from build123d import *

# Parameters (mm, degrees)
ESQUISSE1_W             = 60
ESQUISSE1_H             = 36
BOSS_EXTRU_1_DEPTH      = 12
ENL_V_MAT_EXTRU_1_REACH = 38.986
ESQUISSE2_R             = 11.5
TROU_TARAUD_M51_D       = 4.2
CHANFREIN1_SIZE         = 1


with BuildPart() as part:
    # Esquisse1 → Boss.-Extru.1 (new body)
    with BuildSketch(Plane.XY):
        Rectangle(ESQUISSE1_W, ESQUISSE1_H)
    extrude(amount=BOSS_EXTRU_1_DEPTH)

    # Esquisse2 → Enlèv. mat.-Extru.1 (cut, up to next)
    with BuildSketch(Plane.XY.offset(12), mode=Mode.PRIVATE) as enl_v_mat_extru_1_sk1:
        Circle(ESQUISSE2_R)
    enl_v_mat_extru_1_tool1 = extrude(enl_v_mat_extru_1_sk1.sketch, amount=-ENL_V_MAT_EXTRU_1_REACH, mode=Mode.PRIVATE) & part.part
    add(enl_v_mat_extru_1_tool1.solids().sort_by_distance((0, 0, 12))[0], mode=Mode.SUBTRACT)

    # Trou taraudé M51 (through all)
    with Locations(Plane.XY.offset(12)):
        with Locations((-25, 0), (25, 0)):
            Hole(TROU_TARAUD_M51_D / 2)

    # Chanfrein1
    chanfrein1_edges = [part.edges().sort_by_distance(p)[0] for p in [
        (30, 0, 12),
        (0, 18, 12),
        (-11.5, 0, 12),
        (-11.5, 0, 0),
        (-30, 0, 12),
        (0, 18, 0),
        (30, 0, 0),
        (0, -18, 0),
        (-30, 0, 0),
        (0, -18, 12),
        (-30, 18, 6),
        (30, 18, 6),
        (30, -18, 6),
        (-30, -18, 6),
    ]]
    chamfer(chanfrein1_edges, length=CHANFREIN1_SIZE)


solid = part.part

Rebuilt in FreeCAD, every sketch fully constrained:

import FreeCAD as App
import Part
import Sketcher
from FreeCAD import Vector
Q = App.Units.Quantity


def edges_at(feature, points):
    """Names of the edges that pass closest to the given points."""
    edges = feature.Shape.Edges
    near = lambda p: min(range(len(edges)), key=lambda i: edges[i].distToShape(Part.Vertex(*p))[0])
    return sorted({f"Edge{near(p) + 1}" for p in points})


def add_polygon(sketch, points):
    """Adds a closed chain of lines whose ends are joined by coincident constraints."""
    first, n = sketch.GeometryCount, len(points)
    for a, b in zip(points, points[1:] + points[:1]):
        sketch.addGeometry(Part.LineSegment(App.Vector(*a, 0), App.Vector(*b, 0)), False)
    for i in range(n):
        sketch.addConstraint(Sketcher.Constraint("Coincident", first + i, 2, first + (i + 1) % n, 1))

doc = App.newDocument("Part")
body = doc.addObject("PartDesign::Body", "Body")

# Sketch on XY plane
sketch1 = body.newObject("Sketcher::SketchObject", "Sketch")
sketch1.AttachmentSupport = (doc.getObject("XY_Plane"), [""])
sketch1.MapMode = "FlatFace"
add_polygon(sketch1, [(-30, 18), (-30, -18), (30, -18), (30, 18)])  # lines 0-3
sketch1.addConstraint([
    Sketcher.Constraint("Vertical", 0),
    Sketcher.Constraint("Horizontal", 1),
    Sketcher.Constraint("Vertical", 2),
    Sketcher.Constraint("Horizontal", 3),
    Sketcher.Constraint("Symmetric", 0, 2, 2, 2, -1, 1),
    Sketcher.Constraint("DistanceX", 1, 1, 1, 2, Q("60 mm")),
    Sketcher.Constraint("DistanceY", 0, 2, 0, 1, Q("36 mm")),
])
pad1 = body.newObject("PartDesign::Pad", "Pad")
pad1.Profile = sketch1
pad1.Length = 12

# Sketch on XY plane
sketch2 = body.newObject("Sketcher::SketchObject", "Sketch001")
sketch2.AttachmentSupport = (doc.getObject("XY_Plane"), [""])
sketch2.MapMode = "FlatFace"
sketch2.AttachmentOffset = App.Placement(Vector(0, 0, 12), App.Rotation())
sketch2.addGeometry(Part.Circle(Vector(0, 0, 0), Vector(0, 0, 1), 12), False)
sketch2.addConstraint([
    Sketcher.Constraint("Coincident", 0, 3, -1, 1),
    Sketcher.Constraint("Diameter", 0, Q("23 mm")),
])
pocket1 = body.newObject("PartDesign::Pocket", "Pocket")
pocket1.Profile = sketch2
pocket1.Type = "UpToFirst"

# Sketch on XY plane
sketch3 = body.newObject("Sketcher::SketchObject", "Sketch002")
sketch3.AttachmentSupport = (doc.getObject("XY_Plane"), [""])
sketch3.MapMode = "FlatFace"
sketch3.AttachmentOffset = App.Placement(Vector(0, 0, 12), App.Rotation())
sketch3.addGeometry([
    Part.Circle(Vector(-25, 0, 0), Vector(0, 0, 1), 2.1),
    Part.Circle(Vector(25, 0, 0), Vector(0, 0, 1), 2.1),
], False)
sketch3.addConstraint([
    Sketcher.Constraint("Equal", 0, 1),
    Sketcher.Constraint("Symmetric", 0, 3, 1, 3, -1, 1),
    Sketcher.Constraint("PointOnObject", 0, 3, -1),
    Sketcher.Constraint("Diameter", 0, Q("4.2 mm")),
    Sketcher.Constraint("DistanceX", 0, 3, -1, 1, Q("25 mm")),
])
doc.recompute()
hole = body.newObject("PartDesign::Hole", "Hole")
hole.Profile = sketch3
hole.ThreadType = "None"
hole.Diameter = 4.2
hole.DepthType = "ThroughAll"
doc.recompute()

chamfer = body.newObject("PartDesign::Chamfer", "Chamfer")
chamfer.Base = (hole, edges_at(hole, [
    (30, 0, 12),
    (0, 18, 12),
    (-11.5, 0, 12),
    (-11.5, 0, 0),
    (-30, 0, 12),
    (0, 18, 0),
    (30, 0, 0),
    (0, -18, 0),
    (-30, 0, 0),
    (0, -18, 12),
    (-30, 18, 6),
    (30, 18, 6),
    (30, -18, 6),
    (-30, -18, 6),
]))
chamfer.Size = 1

doc.recompute()
